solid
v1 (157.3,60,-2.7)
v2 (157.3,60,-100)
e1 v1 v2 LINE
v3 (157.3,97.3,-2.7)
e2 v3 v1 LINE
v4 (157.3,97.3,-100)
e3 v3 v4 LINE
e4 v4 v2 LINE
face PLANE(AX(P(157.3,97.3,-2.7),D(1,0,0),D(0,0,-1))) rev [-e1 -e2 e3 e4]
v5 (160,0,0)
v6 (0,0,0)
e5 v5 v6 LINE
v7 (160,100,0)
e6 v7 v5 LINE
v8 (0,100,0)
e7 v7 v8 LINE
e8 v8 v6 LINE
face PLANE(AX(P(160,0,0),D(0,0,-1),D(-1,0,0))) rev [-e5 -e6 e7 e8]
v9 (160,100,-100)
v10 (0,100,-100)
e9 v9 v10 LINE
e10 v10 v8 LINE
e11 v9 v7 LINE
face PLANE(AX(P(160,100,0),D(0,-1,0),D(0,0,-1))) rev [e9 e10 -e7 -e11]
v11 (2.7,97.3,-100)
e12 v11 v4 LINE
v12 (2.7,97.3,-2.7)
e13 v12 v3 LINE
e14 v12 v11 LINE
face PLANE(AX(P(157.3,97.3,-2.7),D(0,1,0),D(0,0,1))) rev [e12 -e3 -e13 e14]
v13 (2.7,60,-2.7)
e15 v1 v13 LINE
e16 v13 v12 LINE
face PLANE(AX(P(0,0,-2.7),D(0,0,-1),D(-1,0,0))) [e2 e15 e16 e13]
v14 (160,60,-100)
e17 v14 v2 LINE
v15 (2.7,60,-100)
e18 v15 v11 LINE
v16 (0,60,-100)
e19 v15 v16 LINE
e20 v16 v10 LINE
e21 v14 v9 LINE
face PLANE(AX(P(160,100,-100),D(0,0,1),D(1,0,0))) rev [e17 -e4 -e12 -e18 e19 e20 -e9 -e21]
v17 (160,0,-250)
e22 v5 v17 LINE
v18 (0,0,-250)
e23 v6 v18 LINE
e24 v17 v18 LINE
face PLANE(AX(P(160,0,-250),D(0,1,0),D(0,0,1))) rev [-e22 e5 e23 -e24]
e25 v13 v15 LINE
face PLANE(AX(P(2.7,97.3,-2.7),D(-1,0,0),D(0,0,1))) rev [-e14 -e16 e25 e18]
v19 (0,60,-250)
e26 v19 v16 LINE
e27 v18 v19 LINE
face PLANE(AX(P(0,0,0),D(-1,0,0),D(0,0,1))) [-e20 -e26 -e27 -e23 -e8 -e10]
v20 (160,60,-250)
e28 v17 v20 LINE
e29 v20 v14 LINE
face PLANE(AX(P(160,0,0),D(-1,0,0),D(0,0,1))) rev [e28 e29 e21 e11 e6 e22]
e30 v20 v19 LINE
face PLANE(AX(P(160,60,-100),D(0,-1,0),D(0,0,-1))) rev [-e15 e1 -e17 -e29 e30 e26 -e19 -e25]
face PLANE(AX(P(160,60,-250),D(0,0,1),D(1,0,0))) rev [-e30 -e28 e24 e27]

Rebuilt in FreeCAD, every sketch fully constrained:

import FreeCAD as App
import Part
import Sketcher

V = App.Vector
Q = App.Units.Quantity


def add_polygon(sketch, points):
    """Adds a closed chain of lines whose ends are joined by coincident constraints."""
    first, n = sketch.GeometryCount, len(points)
    for a, b in zip(points, points[1:] + points[:1]):
        sketch.addGeometry(Part.LineSegment(App.Vector(*a, 0), App.Vector(*b, 0)), False)
    for i in range(n):
        sketch.addConstraint(Sketcher.Constraint("Coincident", first + i, 2, first + (i + 1) % n, 1))

doc = App.newDocument("Part")
body = doc.addObject("PartDesign::Body", "Body")

sketch1 = body.newObject("Sketcher::SketchObject", "Sketch")
sketch1.AttachmentSupport = (doc.getObject("YZ_Plane"), [""])
sketch1.MapMode = "FlatFace"
add_polygon(sketch1, [(100, 0), (0, 0), (0, -250), (60, -250), (60, -100), (100, -100)])
sketch1.addConstraint([
    Sketcher.Constraint("Horizontal", 0),
    Sketcher.Constraint("Vertical", 1),
    Sketcher.Constraint("Horizontal", 2),
    Sketcher.Constraint("Vertical", 3),
    Sketcher.Constraint("Horizontal", 4),
    Sketcher.Constraint("Vertical", 5),
    Sketcher.Constraint("Coincident", 0, 2, -1, 1),
    Sketcher.Constraint("Equal", 0, 5),
    Sketcher.Constraint("DistanceX", 0, 2, 0, 1, Q("100 mm")),
    Sketcher.Constraint("DistanceX", 2, 1, 2, 2, Q("60 mm")),
    Sketcher.Constraint("DistanceY", 1, 2, 1, 1, Q("250 mm")),
])
pad1 = body.newObject("PartDesign::Pad", "Pad")
pad1.Profile = sketch1
pad1.Length = 160

sketch2 = body.newObject("Sketcher::SketchObject", "Sketch001")
sketch2.AttachmentSupport = (doc.getObject("XY_Plane"), [""])
sketch2.MapMode = "FlatFace"
sketch2.AttachmentOffset = App.Placement(V(0, 0, -100), App.Rotation())
add_polygon(sketch2, [(157.3, 97.3), (157.3, 60), (2.7, 60), (2.7, 97.3)])
sketch2.addConstraint([
    Sketcher.Constraint("Vertical", 0),
    Sketcher.Constraint("Horizontal", 1),
    Sketcher.Constraint("Vertical", 2),
    Sketcher.Constraint("Horizontal", 3),
    Sketcher.Constraint("DistanceX", 1, 2, 1, 1, Q("154.6 mm")),
    Sketcher.Constraint("DistanceY", 0, 2, 0, 1, Q("37.3 mm")),
    Sketcher.Constraint("DistanceY", -1, 1, 0, 2, Q("60 mm")),
    Sketcher.Constraint("DistanceX", -1, 1, 0, 2, Q("157.3 mm")),
])
pocket1 = body.newObject("PartDesign::Pocket", "Pocket")
pocket1.Profile = sketch2
pocket1.Length = 97.3
pocket1.Reversed = True

doc.recompute()
